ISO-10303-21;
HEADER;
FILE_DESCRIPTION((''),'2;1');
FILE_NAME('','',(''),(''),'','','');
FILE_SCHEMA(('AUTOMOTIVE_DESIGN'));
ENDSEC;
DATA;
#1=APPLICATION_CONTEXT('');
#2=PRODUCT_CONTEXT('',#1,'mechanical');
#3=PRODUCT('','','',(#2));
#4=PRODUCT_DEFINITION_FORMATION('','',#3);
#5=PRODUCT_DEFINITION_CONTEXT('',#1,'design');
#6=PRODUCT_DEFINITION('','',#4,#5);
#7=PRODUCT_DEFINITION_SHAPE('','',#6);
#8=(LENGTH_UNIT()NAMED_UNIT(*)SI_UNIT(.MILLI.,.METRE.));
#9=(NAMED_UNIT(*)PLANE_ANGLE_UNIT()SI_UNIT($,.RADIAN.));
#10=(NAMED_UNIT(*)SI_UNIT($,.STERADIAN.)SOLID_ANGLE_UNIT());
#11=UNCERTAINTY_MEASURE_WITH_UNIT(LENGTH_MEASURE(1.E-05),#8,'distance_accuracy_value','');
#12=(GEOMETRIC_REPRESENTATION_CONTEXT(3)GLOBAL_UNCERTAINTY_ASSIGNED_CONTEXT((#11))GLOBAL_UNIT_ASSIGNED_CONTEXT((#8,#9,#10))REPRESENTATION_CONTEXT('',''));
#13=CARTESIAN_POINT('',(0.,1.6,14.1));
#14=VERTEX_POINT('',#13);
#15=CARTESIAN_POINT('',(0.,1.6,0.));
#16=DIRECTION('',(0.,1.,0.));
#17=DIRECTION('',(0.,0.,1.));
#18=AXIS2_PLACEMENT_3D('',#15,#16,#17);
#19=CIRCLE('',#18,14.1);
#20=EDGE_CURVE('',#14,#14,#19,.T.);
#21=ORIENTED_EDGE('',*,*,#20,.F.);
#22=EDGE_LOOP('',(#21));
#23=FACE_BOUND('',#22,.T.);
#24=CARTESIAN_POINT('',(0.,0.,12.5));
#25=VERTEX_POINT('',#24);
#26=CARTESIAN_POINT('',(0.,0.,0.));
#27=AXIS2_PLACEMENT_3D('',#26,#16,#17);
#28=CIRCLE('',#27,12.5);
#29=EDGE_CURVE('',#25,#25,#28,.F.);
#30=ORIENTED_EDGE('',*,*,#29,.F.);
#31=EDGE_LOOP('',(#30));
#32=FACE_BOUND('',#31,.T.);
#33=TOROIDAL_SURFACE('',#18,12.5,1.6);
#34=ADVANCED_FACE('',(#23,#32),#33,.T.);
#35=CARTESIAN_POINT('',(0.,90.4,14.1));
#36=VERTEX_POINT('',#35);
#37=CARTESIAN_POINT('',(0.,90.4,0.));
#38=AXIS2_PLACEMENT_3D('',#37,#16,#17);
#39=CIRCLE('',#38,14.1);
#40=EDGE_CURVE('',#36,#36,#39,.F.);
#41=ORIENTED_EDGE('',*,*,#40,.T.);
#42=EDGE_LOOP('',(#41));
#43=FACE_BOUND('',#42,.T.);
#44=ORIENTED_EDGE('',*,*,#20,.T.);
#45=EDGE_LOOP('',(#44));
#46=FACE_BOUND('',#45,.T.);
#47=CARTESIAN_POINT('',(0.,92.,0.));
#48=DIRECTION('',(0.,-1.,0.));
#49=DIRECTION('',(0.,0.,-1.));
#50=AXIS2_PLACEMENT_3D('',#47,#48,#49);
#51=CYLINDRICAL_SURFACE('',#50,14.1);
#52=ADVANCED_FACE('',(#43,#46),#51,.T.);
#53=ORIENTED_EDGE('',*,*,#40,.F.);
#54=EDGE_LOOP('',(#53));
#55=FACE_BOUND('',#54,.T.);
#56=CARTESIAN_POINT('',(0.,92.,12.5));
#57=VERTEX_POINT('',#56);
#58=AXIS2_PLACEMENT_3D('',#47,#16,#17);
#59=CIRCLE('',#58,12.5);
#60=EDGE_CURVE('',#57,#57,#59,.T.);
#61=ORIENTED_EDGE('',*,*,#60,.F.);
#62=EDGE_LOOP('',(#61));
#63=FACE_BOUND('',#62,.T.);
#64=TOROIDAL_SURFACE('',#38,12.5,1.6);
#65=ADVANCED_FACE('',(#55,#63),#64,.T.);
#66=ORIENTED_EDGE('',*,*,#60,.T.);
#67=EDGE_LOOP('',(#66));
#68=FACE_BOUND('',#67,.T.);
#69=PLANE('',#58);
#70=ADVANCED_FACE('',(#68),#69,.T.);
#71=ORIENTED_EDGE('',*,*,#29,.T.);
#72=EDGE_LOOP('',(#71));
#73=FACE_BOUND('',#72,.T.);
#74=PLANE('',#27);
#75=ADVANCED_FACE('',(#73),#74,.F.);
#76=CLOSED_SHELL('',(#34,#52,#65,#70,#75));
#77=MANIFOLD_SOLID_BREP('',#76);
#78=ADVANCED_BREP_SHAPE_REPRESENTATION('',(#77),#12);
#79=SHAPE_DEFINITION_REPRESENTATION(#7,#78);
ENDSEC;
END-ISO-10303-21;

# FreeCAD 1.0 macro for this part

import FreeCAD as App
import Part
import Sketcher


def edges_at(feature, points):
    """Names of the edges that pass closest to the given points."""
    edges = feature.Shape.Edges
    near = lambda p: min(range(len(edges)), key=lambda i: edges[i].distToShape(Part.Vertex(*p))[0])
    return sorted({f"Edge{near(p) + 1}" for p in points})

doc = App.newDocument("Part")
body = doc.addObject("PartDesign::Body", "Body")

sketch1 = body.newObject("Sketcher::SketchObject", "Sketch")
sketch1.AttachmentSupport = (doc.getObject("XZ_Plane"), [""])
sketch1.MapMode = "FlatFace"
sketch1.addGeometry(Part.Circle(App.Vector(0, 0, 0), App.Vector(0, 0, 1), 14), False)
sketch1.addConstraint([
    Sketcher.Constraint("Coincident", 0, 3, -1, 1),
    Sketcher.Constraint("Diameter", 0, 28.2),
])
pad1 = body.newObject("PartDesign::Pad", "Pad")
pad1.Profile = sketch1
pad1.Length = 92
pad1.Reversed = True
doc.recompute()

fillet = body.newObject("PartDesign::Fillet", "Fillet")
fillet.Base = (pad1, edges_at(pad1, [(0, 0, -14.1), (0, 92, -14.1)]))
fillet.Radius = 1.6

doc.recompute()
